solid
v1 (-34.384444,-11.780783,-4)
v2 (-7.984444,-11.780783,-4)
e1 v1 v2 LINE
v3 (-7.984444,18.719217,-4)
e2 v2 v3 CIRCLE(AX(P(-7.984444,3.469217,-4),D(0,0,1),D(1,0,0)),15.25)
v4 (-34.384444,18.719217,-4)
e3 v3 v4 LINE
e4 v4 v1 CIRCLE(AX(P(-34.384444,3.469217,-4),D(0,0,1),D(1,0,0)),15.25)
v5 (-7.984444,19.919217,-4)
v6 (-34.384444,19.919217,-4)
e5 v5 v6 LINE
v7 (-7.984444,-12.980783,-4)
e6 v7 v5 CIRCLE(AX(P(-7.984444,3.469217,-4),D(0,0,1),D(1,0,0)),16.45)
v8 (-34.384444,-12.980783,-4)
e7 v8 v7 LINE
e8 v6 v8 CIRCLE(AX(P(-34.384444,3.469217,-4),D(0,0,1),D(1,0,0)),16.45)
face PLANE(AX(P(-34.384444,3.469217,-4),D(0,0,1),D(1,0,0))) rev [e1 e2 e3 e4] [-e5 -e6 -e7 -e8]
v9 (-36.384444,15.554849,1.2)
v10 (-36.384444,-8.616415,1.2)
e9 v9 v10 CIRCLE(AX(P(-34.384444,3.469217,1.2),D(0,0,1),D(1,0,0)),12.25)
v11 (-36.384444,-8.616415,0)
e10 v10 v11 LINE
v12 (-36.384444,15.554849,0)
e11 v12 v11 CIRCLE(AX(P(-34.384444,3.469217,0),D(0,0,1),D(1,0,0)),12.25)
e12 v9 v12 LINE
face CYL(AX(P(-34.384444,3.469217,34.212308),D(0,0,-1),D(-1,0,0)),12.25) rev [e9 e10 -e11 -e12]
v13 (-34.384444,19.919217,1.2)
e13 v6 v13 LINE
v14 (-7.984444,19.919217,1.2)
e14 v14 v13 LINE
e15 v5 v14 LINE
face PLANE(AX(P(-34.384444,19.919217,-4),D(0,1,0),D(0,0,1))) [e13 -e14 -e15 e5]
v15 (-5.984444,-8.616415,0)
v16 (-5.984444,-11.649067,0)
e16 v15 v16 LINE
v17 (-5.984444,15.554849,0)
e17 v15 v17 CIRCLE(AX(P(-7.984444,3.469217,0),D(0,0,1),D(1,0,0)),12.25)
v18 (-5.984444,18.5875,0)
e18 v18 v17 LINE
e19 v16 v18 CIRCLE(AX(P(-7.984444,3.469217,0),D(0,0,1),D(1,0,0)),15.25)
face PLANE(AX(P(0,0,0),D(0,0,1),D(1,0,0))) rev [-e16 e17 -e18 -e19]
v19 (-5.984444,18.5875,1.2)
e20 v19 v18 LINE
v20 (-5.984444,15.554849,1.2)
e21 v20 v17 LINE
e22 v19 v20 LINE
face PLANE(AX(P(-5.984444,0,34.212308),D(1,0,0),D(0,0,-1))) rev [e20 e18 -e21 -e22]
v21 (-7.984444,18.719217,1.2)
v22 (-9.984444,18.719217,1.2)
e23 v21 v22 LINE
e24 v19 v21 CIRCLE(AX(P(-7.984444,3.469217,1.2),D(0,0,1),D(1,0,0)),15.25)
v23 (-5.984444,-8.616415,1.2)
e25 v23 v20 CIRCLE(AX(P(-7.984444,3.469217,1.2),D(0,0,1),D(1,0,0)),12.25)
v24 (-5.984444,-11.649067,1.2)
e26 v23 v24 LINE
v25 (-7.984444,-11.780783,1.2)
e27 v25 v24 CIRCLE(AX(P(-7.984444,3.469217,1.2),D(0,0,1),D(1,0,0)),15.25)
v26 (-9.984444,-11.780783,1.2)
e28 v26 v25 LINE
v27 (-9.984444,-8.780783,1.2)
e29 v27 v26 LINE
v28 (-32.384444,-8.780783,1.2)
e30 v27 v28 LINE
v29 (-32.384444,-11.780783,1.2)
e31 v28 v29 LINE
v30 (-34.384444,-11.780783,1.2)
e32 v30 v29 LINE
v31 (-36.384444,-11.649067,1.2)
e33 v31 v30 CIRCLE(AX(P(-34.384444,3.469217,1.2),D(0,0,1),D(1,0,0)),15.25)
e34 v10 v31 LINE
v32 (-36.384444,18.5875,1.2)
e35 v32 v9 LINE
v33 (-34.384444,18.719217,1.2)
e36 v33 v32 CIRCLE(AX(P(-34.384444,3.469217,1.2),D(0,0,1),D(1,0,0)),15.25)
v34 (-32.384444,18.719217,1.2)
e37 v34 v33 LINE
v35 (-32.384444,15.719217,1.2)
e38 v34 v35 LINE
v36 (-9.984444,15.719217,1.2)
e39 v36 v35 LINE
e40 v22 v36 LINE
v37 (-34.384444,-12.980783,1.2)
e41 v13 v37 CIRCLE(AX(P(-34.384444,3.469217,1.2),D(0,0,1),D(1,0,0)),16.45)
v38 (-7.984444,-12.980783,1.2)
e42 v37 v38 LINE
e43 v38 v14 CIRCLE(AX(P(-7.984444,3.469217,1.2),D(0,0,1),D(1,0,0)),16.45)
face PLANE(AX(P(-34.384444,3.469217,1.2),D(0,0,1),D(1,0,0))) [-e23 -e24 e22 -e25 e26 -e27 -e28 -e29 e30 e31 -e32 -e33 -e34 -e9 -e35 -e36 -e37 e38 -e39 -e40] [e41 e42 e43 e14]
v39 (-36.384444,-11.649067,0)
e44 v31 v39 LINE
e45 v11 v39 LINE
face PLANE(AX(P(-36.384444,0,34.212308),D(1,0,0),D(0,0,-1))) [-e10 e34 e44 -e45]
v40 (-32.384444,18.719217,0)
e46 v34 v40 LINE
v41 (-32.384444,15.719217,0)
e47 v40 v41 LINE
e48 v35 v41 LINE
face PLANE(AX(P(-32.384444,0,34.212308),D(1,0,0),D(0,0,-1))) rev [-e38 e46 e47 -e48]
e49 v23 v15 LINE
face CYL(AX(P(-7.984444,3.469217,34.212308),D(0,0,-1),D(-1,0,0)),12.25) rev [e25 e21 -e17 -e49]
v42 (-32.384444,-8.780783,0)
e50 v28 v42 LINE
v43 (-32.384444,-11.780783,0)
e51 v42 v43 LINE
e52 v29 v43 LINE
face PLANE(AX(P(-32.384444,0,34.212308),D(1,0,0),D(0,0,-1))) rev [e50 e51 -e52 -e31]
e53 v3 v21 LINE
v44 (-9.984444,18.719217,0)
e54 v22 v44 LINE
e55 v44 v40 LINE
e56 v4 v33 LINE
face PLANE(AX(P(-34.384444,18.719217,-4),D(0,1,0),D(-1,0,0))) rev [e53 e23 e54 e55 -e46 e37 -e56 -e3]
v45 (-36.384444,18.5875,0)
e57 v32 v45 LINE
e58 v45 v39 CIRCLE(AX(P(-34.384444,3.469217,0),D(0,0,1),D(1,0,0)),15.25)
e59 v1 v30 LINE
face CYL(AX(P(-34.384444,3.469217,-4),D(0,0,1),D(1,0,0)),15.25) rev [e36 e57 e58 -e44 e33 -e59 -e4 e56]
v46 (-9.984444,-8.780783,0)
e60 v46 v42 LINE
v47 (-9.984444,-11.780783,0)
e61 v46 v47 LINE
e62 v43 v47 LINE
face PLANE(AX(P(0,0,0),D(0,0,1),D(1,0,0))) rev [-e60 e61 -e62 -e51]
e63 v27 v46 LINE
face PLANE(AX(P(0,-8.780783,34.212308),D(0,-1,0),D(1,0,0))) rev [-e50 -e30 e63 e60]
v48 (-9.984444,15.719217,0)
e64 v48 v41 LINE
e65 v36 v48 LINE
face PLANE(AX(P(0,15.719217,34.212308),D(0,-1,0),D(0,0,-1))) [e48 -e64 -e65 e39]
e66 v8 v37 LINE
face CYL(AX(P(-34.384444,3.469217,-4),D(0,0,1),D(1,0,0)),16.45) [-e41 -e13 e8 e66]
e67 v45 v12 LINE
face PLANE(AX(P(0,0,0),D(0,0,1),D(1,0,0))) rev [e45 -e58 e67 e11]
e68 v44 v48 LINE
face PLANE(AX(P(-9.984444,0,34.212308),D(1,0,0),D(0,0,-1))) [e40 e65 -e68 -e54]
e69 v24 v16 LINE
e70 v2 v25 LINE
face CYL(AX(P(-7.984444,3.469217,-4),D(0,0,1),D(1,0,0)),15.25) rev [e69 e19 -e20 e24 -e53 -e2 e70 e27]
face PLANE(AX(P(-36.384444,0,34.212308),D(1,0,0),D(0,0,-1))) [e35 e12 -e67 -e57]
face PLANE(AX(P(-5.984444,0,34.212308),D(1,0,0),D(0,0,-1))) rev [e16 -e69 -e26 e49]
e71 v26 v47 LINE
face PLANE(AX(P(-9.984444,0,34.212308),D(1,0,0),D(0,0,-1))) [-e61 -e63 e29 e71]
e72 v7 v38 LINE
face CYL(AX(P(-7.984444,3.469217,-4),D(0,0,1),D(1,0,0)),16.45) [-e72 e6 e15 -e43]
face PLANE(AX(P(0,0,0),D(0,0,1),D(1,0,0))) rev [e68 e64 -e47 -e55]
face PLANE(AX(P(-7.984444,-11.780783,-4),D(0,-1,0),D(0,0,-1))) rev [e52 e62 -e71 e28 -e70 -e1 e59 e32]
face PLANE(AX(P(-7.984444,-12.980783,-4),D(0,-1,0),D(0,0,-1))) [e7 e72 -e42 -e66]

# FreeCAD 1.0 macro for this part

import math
import FreeCAD as App
import Part
import Sketcher

doc = App.newDocument("Part")
params = doc.addObject("Spreadsheet::Sheet", "Params")
for row, (alias, value) in enumerate([
    ("sketch1_radius", "16.45 mm"),
    ("sketch1_radius2", "15.25 mm"),
    ("sketch1_width", "26.4 mm"),
    ("pad1_length", "1.2 mm"),
    ("pad1_length2", "4 mm"),
    ("sketch2_height", "3 mm"),
    ("sketch2_radius", "15.25 mm"),
    ("sketch2_radius2", "12.25 mm"),
    ("sketch2_width", "22.4 mm"),
    ("sketch2_width2", "2 mm"),
    ("pad2_length", "1.2 mm"),
], start=1):
    params.set(f"A{row}", alias)
    params.set(f"B{row}", "=" + value)
    params.setAlias(f"B{row}", alias)

body = doc.addObject("PartDesign::Body", "Body")

sketch1 = body.newObject("Sketcher::SketchObject", "Sketch")
sketch1.AttachmentSupport = (doc.getObject("XY_Plane"), [""])
sketch1.MapMode = "FlatFace"
sketch1.addGeometry(Part.LineSegment(App.Vector(-7.984444, 19.919217, 0), App.Vector(-34.384444, 19.919217, 0)), False)
sketch1.addGeometry(Part.ArcOfCircle(Part.Circle(App.Vector(-34.384444, 3.469217, 0), App.Vector(0, 0, 1), 16.45), math.radians(90), math.radians(270)), False)
sketch1.addGeometry(Part.LineSegment(App.Vector(-34.384444, -12.980783, 0), App.Vector(-7.984444, -12.980783, 0)), False)
sketch1.addGeometry(Part.ArcOfCircle(Part.Circle(App.Vector(-7.984444, 3.469217, 0), App.Vector(0, 0, 1), 16.45), math.radians(-90), math.radians(90)), False)
sketch1.addGeometry(Part.LineSegment(App.Vector(-34.384444, 18.719217, 0), App.Vector(-7.984444, 18.719217, 0)), False)
sketch1.addGeometry(Part.ArcOfCircle(Part.Circle(App.Vector(-7.984444, 3.469217, 0), App.Vector(0, 0, 1), 15.25), math.radians(-90), math.radians(90)), False)
sketch1.addGeometry(Part.LineSegment(App.Vector(-7.984444, -11.780783, 0), App.Vector(-34.384444, -11.780783, 0)), False)
sketch1.addGeometry(Part.ArcOfCircle(Part.Circle(App.Vector(-34.384444, 3.469217, 0), App.Vector(0, 0, 1), 15.25), math.radians(90), math.radians(270)), False)
sketch1.addConstraint(Sketcher.Constraint("Tangent", 0, 2, 1, 1))
sketch1.addConstraint(Sketcher.Constraint("Tangent", 1, 2, 2, 1))
sketch1.addConstraint(Sketcher.Constraint("Tangent", 2, 2, 3, 1))
sketch1.addConstraint(Sketcher.Constraint("Tangent", 3, 2, 0, 1))
sketch1.addConstraint(Sketcher.Constraint("Tangent", 4, 2, 5, 2))
sketch1.addConstraint(Sketcher.Constraint("Tangent", 5, 1, 6, 1))
sketch1.addConstraint(Sketcher.Constraint("Tangent", 6, 2, 7, 2))
sketch1.addConstraint(Sketcher.Constraint("Tangent", 7, 1, 4, 1))
sketch1.addConstraint(Sketcher.Constraint("Horizontal", 0))
sketch1.addConstraint(Sketcher.Constraint("Horizontal", 2))
sketch1.addConstraint(Sketcher.Constraint("Horizontal", 4))
sketch1.addConstraint(Sketcher.Constraint("Horizontal", 6))
sketch1.addConstraint(Sketcher.Constraint("Coincident", 5, 3, 3, 3))
sketch1.addConstraint(Sketcher.Constraint("Vertical", 7, 3, 0, 2))
sketch1.addConstraint(Sketcher.Constraint("Radius", 1, 16.45))
sketch1.addConstraint(Sketcher.Constraint("Radius", 5, 15.25))
sketch1.addConstraint(Sketcher.Constraint("DistanceX", 0, 2, 0, 1, 26.4))
sketch1.addConstraint(Sketcher.Constraint("DistanceX", 1, 3, -1, 1, 34.384444))
sketch1.addConstraint(Sketcher.Constraint("DistanceY", -1, 1, 1, 3, 3.469217))
sketch1.setExpression("Constraints[14]", "Params.sketch1_radius")
sketch1.setExpression("Constraints[15]", "Params.sketch1_radius2")
sketch1.setExpression("Constraints[16]", "Params.sketch1_width")
pad1 = body.newObject("PartDesign::Pad", "Pad")
pad1.Profile = sketch1
pad1.Type = "TwoLengths"
pad1.setExpression("Length", "Params.pad1_length")
pad1.setExpression("Length2", "Params.pad1_length2")

sketch2 = body.newObject("Sketcher::SketchObject", "Sketch001")
sketch2.AttachmentSupport = (doc.getObject("XY_Plane"), [""])
sketch2.MapMode = "FlatFace"
sketch2.addGeometry(Part.ArcOfCircle(Part.Circle(App.Vector(-34.384444, 3.469217, 0), App.Vector(0, 0, 1), 15.25), math.radians(97.535909), math.radians(262.464091)), False)
sketch2.addGeometry(Part.LineSegment(App.Vector(-36.384444, -11.649067, 0), App.Vector(-36.384444, -8.616415, 0)), False)
sketch2.addGeometry(Part.ArcOfCircle(Part.Circle(App.Vector(-34.384444, 3.469217, 0), App.Vector(0, 0, 1), 12.25), math.radians(99.396477), math.radians(260.603523)), False)
sketch2.addGeometry(Part.LineSegment(App.Vector(-36.384444, 15.554849, 0), App.Vector(-36.384444, 18.5875, 0)), False)
sketch2.addGeometry(Part.LineSegment(App.Vector(-32.384444, 18.719217, 0), App.Vector(-32.384444, 15.719217, 0)), False)
sketch2.addGeometry(Part.LineSegment(App.Vector(-32.384444, 15.719217, 0), App.Vector(-9.984444, 15.719217, 0)), False)
sketch2.addGeometry(Part.LineSegment(App.Vector(-9.984444, 15.719217, 0), App.Vector(-9.984444, 18.719217, 0)), False)
sketch2.addGeometry(Part.LineSegment(App.Vector(-9.984444, 18.719217, 0), App.Vector(-32.384444, 18.719217, 0)), False)
sketch2.addGeometry(Part.ArcOfCircle(Part.Circle(App.Vector(-7.984444, 3.469217, 0), App.Vector(0, 0, 1), 15.25), math.radians(31.640657), math.radians(82.464091)), False)
sketch2.addGeometry(Part.LineSegment(App.Vector(-5.984444, 18.5875, 0), App.Vector(-5.984444, 15.554849, 0)), False)
sketch2.addGeometry(Part.ArcOfCircle(Part.Circle(App.Vector(-7.984444, 3.469217, 0), App.Vector(0, 0, 1), 12.25), math.radians(-80.603523), math.radians(80.603523)), False)
sketch2.addGeometry(Part.LineSegment(App.Vector(-5.984444, -8.616415, 0), App.Vector(-5.984444, -11.649067, 0)), False)
sketch2.addGeometry(Part.ArcOfCircle(Part.Circle(App.Vector(-7.984444, 3.469217, 0), App.Vector(0, 0, 1), 15.25), math.radians(-82.464091), math.radians(-31.640657)), False)
sketch2.addGeometry(Part.ArcOfCircle(Part.Circle(App.Vector(-7.984444, 3.469217, 0), App.Vector(0, 0, 1), 15.25), math.radians(-31.640657), math.radians(31.640657)), False)
sketch2.addGeometry(Part.LineSegment(App.Vector(-32.384444, -8.780783, 0), App.Vector(-32.384444, -11.780783, 0)), False)
sketch2.addGeometry(Part.LineSegment(App.Vector(-32.384444, -11.780783, 0), App.Vector(-9.984444, -11.780783, 0)), False)
sketch2.addGeometry(Part.LineSegment(App.Vector(-9.984444, -11.780783, 0), App.Vector(-9.984444, -8.780783, 0)), False)
sketch2.addGeometry(Part.LineSegment(App.Vector(-9.984444, -8.780783, 0), App.Vector(-32.384444, -8.780783, 0)), False)
sketch2.addConstraint(Sketcher.Constraint("Coincident", 0, 2, 1, 1))
sketch2.addConstraint(Sketcher.Constraint("Coincident", 1, 2, 2, 2))
sketch2.addConstraint(Sketcher.Constraint("Coincident", 2, 1, 3, 1))
sketch2.addConstraint(Sketcher.Constraint("Coincident", 3, 2, 0, 1))
sketch2.addConstraint(Sketcher.Constraint("Coincident", 4, 2, 5, 1))
sketch2.addConstraint(Sketcher.Constraint("Coincident", 5, 2, 6, 1))
sketch2.addConstraint(Sketcher.Constraint("Coincident", 6, 2, 7, 1))
sketch2.addConstraint(Sketcher.Constraint("Coincident", 7, 2, 4, 1))
sketch2.addConstraint(Sketcher.Constraint("Coincident", 8, 2, 9, 1))
sketch2.addConstraint(Sketcher.Constraint("Coincident", 9, 2, 10, 2))
sketch2.addConstraint(Sketcher.Constraint("Coincident", 10, 1, 11, 1))
sketch2.addConstraint(Sketcher.Constraint("Coincident", 11, 2, 12, 1))
sketch2.addConstraint(Sketcher.Constraint("Tangent", 12, 2, 13, 1))
sketch2.addConstraint(Sketcher.Constraint("Tangent", 13, 2, 8, 1))
sketch2.addConstraint(Sketcher.Constraint("Coincident", 14, 2, 15, 1))
sketch2.addConstraint(Sketcher.Constraint("Coincident", 15, 2, 16, 1))
sketch2.addConstraint(Sketcher.Constraint("Coincident", 16, 2, 17, 1))
sketch2.addConstraint(Sketcher.Constraint("Coincident", 17, 2, 14, 1))
sketch2.addConstraint(Sketcher.Constraint("Vertical", 1))
sketch2.addConstraint(Sketcher.Constraint("Vertical", 3))
sketch2.addConstraint(Sketcher.Constraint("Vertical", 4))
sketch2.addConstraint(Sketcher.Constraint("Horizontal", 5))
sketch2.addConstraint(Sketcher.Constraint("Vertical", 6))
sketch2.addConstraint(Sketcher.Constraint("Horizontal", 7))
sketch2.addConstraint(Sketcher.Constraint("Vertical", 9))
sketch2.addConstraint(Sketcher.Constraint("Vertical", 11))
sketch2.addConstraint(Sketcher.Constraint("Vertical", 14))
sketch2.addConstraint(Sketcher.Constraint("Horizontal", 15))
sketch2.addConstraint(Sketcher.Constraint("Vertical", 16))
sketch2.addConstraint(Sketcher.Constraint("Horizontal", 17))
sketch2.addConstraint(Sketcher.Constraint("Coincident", 2, 3, 0, 3))
sketch2.addConstraint(Sketcher.Constraint("Coincident", 10, 3, 8, 3))
sketch2.addConstraint(Sketcher.Constraint("Coincident", 12, 3, 8, 3))
sketch2.addConstraint(Sketcher.Constraint("Equal", 0, 8))
sketch2.addConstraint(Sketcher.Constraint("Equal", 2, 10))
sketch2.addConstraint(Sketcher.Constraint("Horizontal", 2, 3, 8, 3))
sketch2.addConstraint(Sketcher.Constraint("Horizontal", 3, 2, 8, 2))
sketch2.addConstraint(Sketcher.Constraint("Horizontal", 1, 2, 10, 1))
sketch2.addConstraint(Sketcher.Constraint("Vertical", 1, 2, 2, 1))
sketch2.addConstraint(Sketcher.Constraint("Vertical", 12, 2, 13, 2))
sketch2.addConstraint(Sketcher.Constraint("Vertical", 7, 2, 14, 2))
sketch2.addConstraint(Sketcher.Constraint("Vertical", 6, 2, 15, 2))
sketch2.addConstraint(Sketcher.Constraint("Equal", 6, 14))
sketch2.addConstraint(Sketcher.Constraint("DistanceY", 4, 2, 4, 1, 3.0))
sketch2.addConstraint(Sketcher.Constraint("Radius", 0, 15.25))
sketch2.addConstraint(Sketcher.Constraint("Radius", 2, 12.25))
sketch2.addConstraint(Sketcher.Constraint("DistanceX", 5, 1, 5, 2, 22.4))
sketch2.addConstraint(Sketcher.Constraint("DistanceX", 0, 2, 0, 3, 2.0))
sketch2.addConstraint(Sketcher.Constraint("DistanceX", 2, 1, 4, 2, 4.0))
sketch2.addConstraint(Sketcher.Constraint("DistanceX", 5, 2, 12, 3, 2.0))
sketch2.addConstraint(Sketcher.Constraint("DistanceY", 12, 2, 8, 3, 8.0))
sketch2.addConstraint(Sketcher.Constraint("DistanceY", 0, 3, 4, 2, 12.25))
sketch2.addConstraint(Sketcher.Constraint("DistanceY", 14, 2, 0, 3, 15.25))
sketch2.addConstraint(Sketcher.Constraint("DistanceY", -1, 1, 3, 2, 18.5875))
sketch2.addConstraint(Sketcher.Constraint("DistanceX", 0, 3, -1, 1, 34.384444))
sketch2.setExpression("Constraints[43]", "Params.sketch2_height")
sketch2.setExpression("Constraints[44]", "Params.sketch2_radius")
sketch2.setExpression("Constraints[45]", "Params.sketch2_radius2")
sketch2.setExpression("Constraints[46]", "Params.sketch2_width")
sketch2.setExpression("Constraints[47]", "Params.sketch2_width2")
pad2 = body.newObject("PartDesign::Pad", "Pad001")
pad2.Profile = sketch2
pad2.setExpression("Length", "Params.pad2_length")

doc.recompute()
